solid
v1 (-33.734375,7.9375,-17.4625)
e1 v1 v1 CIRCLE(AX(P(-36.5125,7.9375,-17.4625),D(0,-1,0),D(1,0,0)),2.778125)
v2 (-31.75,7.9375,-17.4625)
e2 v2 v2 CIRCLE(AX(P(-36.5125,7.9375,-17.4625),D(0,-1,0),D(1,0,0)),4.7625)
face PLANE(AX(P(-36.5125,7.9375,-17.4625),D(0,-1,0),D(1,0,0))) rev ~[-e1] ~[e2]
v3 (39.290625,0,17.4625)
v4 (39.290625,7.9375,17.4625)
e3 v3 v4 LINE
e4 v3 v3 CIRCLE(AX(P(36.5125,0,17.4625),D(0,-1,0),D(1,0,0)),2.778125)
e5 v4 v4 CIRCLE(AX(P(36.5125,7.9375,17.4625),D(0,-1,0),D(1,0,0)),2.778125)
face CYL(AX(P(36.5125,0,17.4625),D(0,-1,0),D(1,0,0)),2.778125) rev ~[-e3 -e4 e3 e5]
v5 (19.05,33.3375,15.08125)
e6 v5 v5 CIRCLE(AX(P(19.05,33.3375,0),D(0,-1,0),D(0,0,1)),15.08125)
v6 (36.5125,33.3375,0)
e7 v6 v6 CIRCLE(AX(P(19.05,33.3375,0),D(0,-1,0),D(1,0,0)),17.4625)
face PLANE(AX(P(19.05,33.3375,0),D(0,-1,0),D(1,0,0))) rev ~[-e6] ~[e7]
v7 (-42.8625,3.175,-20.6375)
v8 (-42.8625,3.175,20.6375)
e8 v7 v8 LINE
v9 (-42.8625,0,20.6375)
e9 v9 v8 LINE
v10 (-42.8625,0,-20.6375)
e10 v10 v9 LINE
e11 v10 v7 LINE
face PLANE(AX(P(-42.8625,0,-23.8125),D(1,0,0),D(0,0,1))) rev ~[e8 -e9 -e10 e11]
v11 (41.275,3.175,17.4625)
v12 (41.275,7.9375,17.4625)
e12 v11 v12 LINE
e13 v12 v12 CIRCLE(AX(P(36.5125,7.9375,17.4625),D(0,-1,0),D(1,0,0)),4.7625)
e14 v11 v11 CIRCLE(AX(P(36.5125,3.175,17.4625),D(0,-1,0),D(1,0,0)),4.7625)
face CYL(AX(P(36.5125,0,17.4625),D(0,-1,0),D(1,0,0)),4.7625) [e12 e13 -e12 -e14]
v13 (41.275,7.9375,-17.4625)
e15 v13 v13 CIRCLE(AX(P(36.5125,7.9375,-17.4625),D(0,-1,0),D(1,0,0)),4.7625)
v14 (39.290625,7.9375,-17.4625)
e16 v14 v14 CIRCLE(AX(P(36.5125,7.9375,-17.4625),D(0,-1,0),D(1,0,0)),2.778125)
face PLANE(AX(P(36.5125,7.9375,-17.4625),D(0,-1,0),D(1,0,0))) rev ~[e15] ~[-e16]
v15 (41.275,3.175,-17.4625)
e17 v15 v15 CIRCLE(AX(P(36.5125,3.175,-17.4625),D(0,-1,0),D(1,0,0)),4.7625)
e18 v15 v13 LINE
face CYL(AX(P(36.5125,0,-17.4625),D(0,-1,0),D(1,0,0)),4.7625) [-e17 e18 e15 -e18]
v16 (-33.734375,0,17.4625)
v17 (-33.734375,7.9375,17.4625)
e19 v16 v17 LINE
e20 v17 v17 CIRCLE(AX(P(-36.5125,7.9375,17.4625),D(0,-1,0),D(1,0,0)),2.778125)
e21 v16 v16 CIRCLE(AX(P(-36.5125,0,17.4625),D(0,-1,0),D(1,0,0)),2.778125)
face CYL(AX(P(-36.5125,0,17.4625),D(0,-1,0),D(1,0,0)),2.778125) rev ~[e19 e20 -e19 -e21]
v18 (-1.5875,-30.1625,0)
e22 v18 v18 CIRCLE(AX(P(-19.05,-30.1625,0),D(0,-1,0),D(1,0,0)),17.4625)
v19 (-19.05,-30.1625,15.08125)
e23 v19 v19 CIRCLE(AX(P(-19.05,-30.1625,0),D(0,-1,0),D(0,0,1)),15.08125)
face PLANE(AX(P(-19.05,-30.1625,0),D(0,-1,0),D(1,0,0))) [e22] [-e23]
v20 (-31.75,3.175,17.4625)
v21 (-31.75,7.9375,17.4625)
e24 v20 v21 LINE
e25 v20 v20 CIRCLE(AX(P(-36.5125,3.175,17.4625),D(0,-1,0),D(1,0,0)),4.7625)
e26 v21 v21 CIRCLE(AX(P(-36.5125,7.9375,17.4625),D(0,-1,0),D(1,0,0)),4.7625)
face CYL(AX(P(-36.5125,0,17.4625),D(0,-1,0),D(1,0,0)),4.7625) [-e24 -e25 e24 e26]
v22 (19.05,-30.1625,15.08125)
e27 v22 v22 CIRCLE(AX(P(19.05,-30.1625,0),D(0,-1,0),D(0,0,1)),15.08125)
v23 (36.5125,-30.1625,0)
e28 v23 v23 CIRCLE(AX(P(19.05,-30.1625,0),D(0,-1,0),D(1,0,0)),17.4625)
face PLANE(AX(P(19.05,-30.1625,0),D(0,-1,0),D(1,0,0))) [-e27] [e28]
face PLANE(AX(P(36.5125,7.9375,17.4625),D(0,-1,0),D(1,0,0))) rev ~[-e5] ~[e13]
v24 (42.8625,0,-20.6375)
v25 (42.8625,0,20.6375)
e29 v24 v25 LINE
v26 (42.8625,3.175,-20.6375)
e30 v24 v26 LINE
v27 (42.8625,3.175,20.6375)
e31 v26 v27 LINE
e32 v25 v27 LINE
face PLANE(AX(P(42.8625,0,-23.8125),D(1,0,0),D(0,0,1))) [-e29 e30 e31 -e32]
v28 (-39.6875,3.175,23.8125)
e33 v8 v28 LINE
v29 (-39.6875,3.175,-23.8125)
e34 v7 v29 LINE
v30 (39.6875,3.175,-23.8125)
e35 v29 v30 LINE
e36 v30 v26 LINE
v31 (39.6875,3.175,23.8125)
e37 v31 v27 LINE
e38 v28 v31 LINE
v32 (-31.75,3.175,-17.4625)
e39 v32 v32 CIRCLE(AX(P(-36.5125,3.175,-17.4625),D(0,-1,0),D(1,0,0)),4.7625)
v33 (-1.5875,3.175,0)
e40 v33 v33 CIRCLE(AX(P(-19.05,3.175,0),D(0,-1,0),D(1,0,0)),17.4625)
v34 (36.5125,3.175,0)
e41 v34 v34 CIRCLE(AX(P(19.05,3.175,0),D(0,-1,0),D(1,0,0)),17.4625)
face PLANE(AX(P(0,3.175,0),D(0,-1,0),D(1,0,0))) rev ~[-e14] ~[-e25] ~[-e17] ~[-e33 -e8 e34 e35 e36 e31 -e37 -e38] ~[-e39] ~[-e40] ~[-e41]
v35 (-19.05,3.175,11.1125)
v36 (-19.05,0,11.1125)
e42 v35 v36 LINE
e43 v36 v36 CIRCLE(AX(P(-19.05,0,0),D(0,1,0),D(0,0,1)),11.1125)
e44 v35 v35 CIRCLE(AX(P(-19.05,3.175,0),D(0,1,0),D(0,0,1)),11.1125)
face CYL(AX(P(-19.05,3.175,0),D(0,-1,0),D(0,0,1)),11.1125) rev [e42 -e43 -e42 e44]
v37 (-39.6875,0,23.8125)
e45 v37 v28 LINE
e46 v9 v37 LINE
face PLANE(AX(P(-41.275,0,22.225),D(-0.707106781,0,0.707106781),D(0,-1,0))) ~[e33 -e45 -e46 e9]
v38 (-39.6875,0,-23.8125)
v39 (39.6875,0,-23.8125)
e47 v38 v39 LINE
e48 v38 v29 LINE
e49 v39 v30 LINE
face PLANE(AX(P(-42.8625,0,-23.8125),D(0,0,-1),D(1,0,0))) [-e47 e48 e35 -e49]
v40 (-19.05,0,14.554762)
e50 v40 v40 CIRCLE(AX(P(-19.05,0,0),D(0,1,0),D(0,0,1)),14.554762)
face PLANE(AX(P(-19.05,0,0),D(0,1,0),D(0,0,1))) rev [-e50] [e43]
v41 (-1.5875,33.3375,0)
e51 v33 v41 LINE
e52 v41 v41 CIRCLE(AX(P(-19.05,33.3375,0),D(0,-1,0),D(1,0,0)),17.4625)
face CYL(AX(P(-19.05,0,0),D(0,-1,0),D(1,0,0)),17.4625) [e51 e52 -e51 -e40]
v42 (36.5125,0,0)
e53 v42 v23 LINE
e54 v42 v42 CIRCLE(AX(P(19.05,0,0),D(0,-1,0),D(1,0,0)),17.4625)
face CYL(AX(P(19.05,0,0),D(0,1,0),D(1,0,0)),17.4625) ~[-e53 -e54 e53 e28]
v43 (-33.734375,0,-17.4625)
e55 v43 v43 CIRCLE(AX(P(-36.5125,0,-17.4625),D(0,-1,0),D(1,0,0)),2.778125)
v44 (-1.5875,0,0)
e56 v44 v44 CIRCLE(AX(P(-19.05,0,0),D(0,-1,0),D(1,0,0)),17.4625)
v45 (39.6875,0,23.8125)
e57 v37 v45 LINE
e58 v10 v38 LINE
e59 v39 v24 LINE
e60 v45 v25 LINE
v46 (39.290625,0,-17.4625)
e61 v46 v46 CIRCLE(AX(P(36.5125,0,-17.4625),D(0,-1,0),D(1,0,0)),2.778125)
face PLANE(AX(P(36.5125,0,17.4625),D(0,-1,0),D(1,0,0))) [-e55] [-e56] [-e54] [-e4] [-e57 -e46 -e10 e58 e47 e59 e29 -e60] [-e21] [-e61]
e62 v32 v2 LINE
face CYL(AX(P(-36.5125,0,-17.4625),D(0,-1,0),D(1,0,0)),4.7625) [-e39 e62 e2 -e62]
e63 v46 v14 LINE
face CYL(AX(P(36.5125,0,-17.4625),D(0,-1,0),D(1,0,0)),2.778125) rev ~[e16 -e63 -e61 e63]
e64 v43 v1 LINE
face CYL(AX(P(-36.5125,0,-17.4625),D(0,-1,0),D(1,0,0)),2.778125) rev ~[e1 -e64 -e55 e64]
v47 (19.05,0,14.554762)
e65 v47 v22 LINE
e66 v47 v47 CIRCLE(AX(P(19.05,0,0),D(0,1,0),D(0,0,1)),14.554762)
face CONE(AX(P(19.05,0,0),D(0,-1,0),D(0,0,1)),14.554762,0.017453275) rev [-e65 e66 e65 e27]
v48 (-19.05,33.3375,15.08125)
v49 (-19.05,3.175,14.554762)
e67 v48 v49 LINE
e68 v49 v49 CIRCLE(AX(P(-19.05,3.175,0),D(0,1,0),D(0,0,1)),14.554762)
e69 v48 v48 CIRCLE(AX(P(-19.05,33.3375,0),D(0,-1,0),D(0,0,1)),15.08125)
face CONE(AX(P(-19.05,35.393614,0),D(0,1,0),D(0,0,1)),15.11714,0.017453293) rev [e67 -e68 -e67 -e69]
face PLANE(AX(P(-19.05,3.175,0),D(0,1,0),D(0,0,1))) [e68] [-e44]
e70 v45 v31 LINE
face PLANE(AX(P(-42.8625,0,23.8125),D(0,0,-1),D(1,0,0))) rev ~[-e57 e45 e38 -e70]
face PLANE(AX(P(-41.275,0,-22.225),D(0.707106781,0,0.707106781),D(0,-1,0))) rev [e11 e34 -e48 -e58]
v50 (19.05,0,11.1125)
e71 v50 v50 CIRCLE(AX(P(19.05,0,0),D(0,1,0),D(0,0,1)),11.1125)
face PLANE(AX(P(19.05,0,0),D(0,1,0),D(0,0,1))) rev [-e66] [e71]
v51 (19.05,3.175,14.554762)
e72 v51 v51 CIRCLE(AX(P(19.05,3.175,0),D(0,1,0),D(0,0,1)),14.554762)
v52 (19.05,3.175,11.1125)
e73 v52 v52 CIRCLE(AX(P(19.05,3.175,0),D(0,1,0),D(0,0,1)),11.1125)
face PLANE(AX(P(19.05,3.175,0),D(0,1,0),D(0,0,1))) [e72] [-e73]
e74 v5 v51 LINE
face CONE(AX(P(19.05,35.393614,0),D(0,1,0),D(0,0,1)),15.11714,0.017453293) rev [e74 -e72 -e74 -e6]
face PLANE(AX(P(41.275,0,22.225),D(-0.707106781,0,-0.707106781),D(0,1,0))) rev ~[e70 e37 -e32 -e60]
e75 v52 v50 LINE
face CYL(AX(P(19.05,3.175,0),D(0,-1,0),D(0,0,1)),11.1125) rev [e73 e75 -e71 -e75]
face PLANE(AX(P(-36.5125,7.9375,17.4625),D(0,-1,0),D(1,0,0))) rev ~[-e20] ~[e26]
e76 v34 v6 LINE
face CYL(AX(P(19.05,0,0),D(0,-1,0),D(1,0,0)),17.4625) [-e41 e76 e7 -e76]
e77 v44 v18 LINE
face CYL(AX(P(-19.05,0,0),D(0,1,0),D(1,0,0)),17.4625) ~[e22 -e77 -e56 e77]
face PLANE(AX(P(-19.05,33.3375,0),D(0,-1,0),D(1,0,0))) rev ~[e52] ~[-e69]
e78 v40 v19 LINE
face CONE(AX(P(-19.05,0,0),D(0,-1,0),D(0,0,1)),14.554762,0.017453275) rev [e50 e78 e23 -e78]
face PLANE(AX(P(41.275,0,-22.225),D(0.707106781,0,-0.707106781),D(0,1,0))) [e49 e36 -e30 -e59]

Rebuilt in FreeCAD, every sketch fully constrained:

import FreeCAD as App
import Part
import Sketcher
from FreeCAD import Vector
Q = App.Units.Quantity


def edges_at(feature, points):
    """Names of the edges that pass closest to the given points."""
    edges = feature.Shape.Edges
    near = lambda p: min(range(len(edges)), key=lambda i: edges[i].distToShape(Part.Vertex(*p))[0])
    return sorted({f"Edge{near(p) + 1}" for p in points})


def add_polygon(sketch, points):
    """Adds a closed chain of lines whose ends are joined by coincident constraints."""
    first, n = sketch.GeometryCount, len(points)
    for a, b in zip(points, points[1:] + points[:1]):
        sketch.addGeometry(Part.LineSegment(App.Vector(*a, 0), App.Vector(*b, 0)), False)
    for i in range(n):
        sketch.addConstraint(Sketcher.Constraint("Coincident", first + i, 2, first + (i + 1) % n, 1))

doc = App.newDocument("Part")
body = doc.addObject("PartDesign::Body", "Body")

# Sketch on XZ plane
sketch1 = body.newObject("Sketcher::SketchObject", "Sketch")
sketch1.AttachmentSupport = (doc.getObject("XZ_Plane"), [""])
sketch1.MapMode = "FlatFace"
add_polygon(sketch1, [(-43, 24), (-43, -24), (43, -24), (43, 24)])  # lines 0-3
sketch1.addConstraint([
    Sketcher.Constraint("Vertical", 0),
    Sketcher.Constraint("Horizontal", 1),
    Sketcher.Constraint("Vertical", 2),
    Sketcher.Constraint("Horizontal", 3),
    Sketcher.Constraint("Symmetric", 0, 2, 2, 2, -1, 1),
    Sketcher.Constraint("DistanceX", 1, 1, 1, 2, Q("3.375 in")),
    Sketcher.Constraint("DistanceY", 0, 2, 0, 1, Q("1.875 in")),
])
pad1 = body.newObject("PartDesign::Pad", "Pad")
pad1.Profile = sketch1
pad1.Length = Q("0.125 in")
pad1.Reversed = True

# Sketch on XZ plane
sketch2 = body.newObject("Sketcher::SketchObject", "Sketch001")
sketch2.AttachmentSupport = (doc.getObject("XZ_Plane"), [""])
sketch2.MapMode = "FlatFace"
sketch2.addGeometry([
    Part.Circle(Vector(19, 0, 0), Vector(0, 0, 1), 17),
    Part.Circle(Vector(-19, 0, 0), Vector(0, 0, 1), 17),
], False)
sketch2.addConstraint([
    Sketcher.Constraint("Equal", 0, 1),
    Sketcher.Constraint("Symmetric", 0, 3, 1, 3, -1, 1),
    Sketcher.Constraint("PointOnObject", 0, 3, -1),
    Sketcher.Constraint("Diameter", 0, Q("1.375 in")),
    Sketcher.Constraint("DistanceX", 1, 3, 0, 3, Q("1.5 in")),
])
pad2 = body.newObject("PartDesign::Pad", "Pad001")
pad2.Profile = sketch2
pad2.Length = Q("1.1875 in")

# Sketch on XZ plane
sketch3 = body.newObject("Sketcher::SketchObject", "Sketch002")
sketch3.AttachmentSupport = (doc.getObject("XZ_Plane"), [""])
sketch3.MapMode = "FlatFace"
sketch3.addGeometry([
    Part.Circle(Vector(19, 0, 0), Vector(0, 0, 1), 17),
    Part.Circle(Vector(-19, 0, 0), Vector(0, 0, 1), 17),
], False)
sketch3.addConstraint([
    Sketcher.Constraint("Equal", 0, 1),
    Sketcher.Constraint("Symmetric", 0, 3, 1, 3, -1, 1),
    Sketcher.Constraint("PointOnObject", 0, 3, -1),
    Sketcher.Constraint("Diameter", 0, Q("1.375 in")),
    Sketcher.Constraint("DistanceX", 1, 3, 0, 3, Q("1.5 in")),
])
pad3 = body.newObject("PartDesign::Pad", "Pad002")
pad3.Profile = sketch3
pad3.Length = Q("1.3125 in")
pad3.Reversed = True

# Sketch on YZ plane
sketch4 = body.newObject("Sketcher::SketchObject", "Sketch003")
sketch4.AttachmentSupport = (doc.getObject("YZ_Plane"), [""])
sketch4.MapMode = "FlatFace"
sketch4.AttachmentOffset = App.Placement(Vector(0, 0, -0.75 * 25.4), App.Rotation())
add_polygon(sketch4, [(0, 14.6), (-37.2, 15.2), (-37.2, 0), (35.4, 0), (35.4, 15.1), (3.2, 14.6), (3.2, 11.1), (0, 11.1)])  # lines 0-7
sketch4.addConstraint([
    Sketcher.Constraint("Vertical", 1),
    Sketcher.Constraint("Horizontal", 2),
    Sketcher.Constraint("Vertical", 3),
    Sketcher.Constraint("Vertical", 5),
    Sketcher.Constraint("Horizontal", 6),
    Sketcher.Constraint("Vertical", 7),
    Sketcher.Constraint("PointOnObject", 1, 2, -1),
    Sketcher.Constraint("PointOnObject", 6, 2, -2),
    Sketcher.Constraint("Horizontal", 4, 2, 7, 2),
    Sketcher.Constraint("Angle", 0, Q("179.000001 deg")),
    Sketcher.Constraint("Angle", 4, Q("-179 deg")),
    Sketcher.Constraint("DistanceX", 6, 2, 6, 1, Q("0.125 in")),
    Sketcher.Constraint("DistanceY", -1, 1, 5, 2, Q("0.4375 in")),
    Sketcher.Constraint("DistanceX", 2, 1, 2, 2, Q("72.595689 mm")),
    Sketcher.Constraint("DistanceY", 3, 1, 3, 2, Q("15.11714 mm")),
    Sketcher.Constraint("DistanceY", 5, 2, 5, 1, Q("3.442262 mm")),
])
groove = body.newObject("PartDesign::Groove", "Groove")
groove.Profile = sketch4
groove.ReferenceAxis = (sketch4, ["H_Axis"])
groove.Angle = 360

# Sketch on YZ plane
sketch5 = body.newObject("Sketcher::SketchObject", "Sketch004")
sketch5.AttachmentSupport = (doc.getObject("YZ_Plane"), [""])
sketch5.MapMode = "FlatFace"
sketch5.AttachmentOffset = App.Placement(Vector(0, 0, 0.75 * 25.4), App.Rotation())
add_polygon(sketch5, [(0, 14.6), (-37.2, 15.2), (-37.2, 0), (35.4, 0), (35.4, 15.1), (3.2, 14.6), (3.2, 11.1), (0, 11.1)])  # lines 0-7
sketch5.addConstraint([
    Sketcher.Constraint("Vertical", 1),
    Sketcher.Constraint("Horizontal", 2),
    Sketcher.Constraint("Vertical", 3),
    Sketcher.Constraint("Vertical", 5),
    Sketcher.Constraint("Horizontal", 6),
    Sketcher.Constraint("Vertical", 7),
    Sketcher.Constraint("PointOnObject", 1, 2, -1),
    Sketcher.Constraint("PointOnObject", 6, 2, -2),
    Sketcher.Constraint("Horizontal", 4, 2, 7, 2),
    Sketcher.Constraint("Angle", 0, Q("179.000001 deg")),
    Sketcher.Constraint("Angle", 4, Q("-179 deg")),
    Sketcher.Constraint("DistanceX", 6, 2, 6, 1, Q("0.125 in")),
    Sketcher.Constraint("DistanceY", -1, 1, 5, 2, Q("0.4375 in")),
    Sketcher.Constraint("DistanceX", 2, 1, 2, 2, Q("72.595689 mm")),
    Sketcher.Constraint("DistanceY", 3, 1, 3, 2, Q("15.11714 mm")),
    Sketcher.Constraint("DistanceY", 5, 2, 5, 1, Q("3.442262 mm")),
])
groove2 = body.newObject("PartDesign::Groove", "Groove001")
groove2.Profile = sketch5
groove2.ReferenceAxis = (sketch5, ["H_Axis"])
groove2.Angle = 360
doc.recompute()

chamfer = body.newObject("PartDesign::Chamfer", "Chamfer")
chamfer.Base = (groove2, edges_at(groove2, [
    (-42.862, 1.587, 23.812),
    (42.862, 1.587, 23.812),
    (42.862, 1.587, -23.812),
    (-42.862, 1.587, -23.812),
]))
chamfer.Size = Q("0.125 in")

# Sketch on XZ plane
sketch6 = body.newObject("Sketcher::SketchObject", "Sketch005")
sketch6.AttachmentSupport = (doc.getObject("XZ_Plane"), [""])
sketch6.MapMode = "FlatFace"
sketch6.addGeometry([
    Part.Circle(Vector(36.5, 17.5, 0), Vector(0, 0, 1), 4.8),
    Part.Circle(Vector(-36.5, 17.5, 0), Vector(0, 0, 1), 4.8),
    Part.Circle(Vector(-36.5, -17.5, 0), Vector(0, 0, 1), 4.8),
    Part.Circle(Vector(36.5, -17.5, 0), Vector(0, 0, 1), 4.8),
], False)
sketch6.addConstraint([
    Sketcher.Constraint("Equal", 0, 1),
    Sketcher.Constraint("Equal", 1, 2),
    Sketcher.Constraint("Equal", 2, 3),
    Sketcher.Constraint("Symmetric", 0, 3, 2, 3, -1, 1),
    Sketcher.Constraint("Symmetric", 1, 3, 3, 3, -1, 1),
    Sketcher.Constraint("Symmetric", 0, 3, 1, 3, -2),
    Sketcher.Constraint("Diameter", 0, Q("0.375 in")),
    Sketcher.Constraint("DistanceX", -1, 1, 0, 3, Q("1.4375 in")),
    Sketcher.Constraint("DistanceY", -1, 1, 0, 3, Q("0.6875 in")),
])
pad4 = body.newObject("PartDesign::Pad", "Pad003")
pad4.Profile = sketch6
pad4.Length = Q("0.3125 in")
pad4.Reversed = True

# Sketch on XZ plane
sketch7 = body.newObject("Sketcher::SketchObject", "Sketch006")
sketch7.AttachmentSupport = (doc.getObject("XZ_Plane"), [""])
sketch7.MapMode = "FlatFace"
sketch7.addGeometry([
    Part.Circle(Vector(-36.5, 17.5, 0), Vector(0, 0, 1), 2.8),
    Part.Circle(Vector(36.5, 17.5, 0), Vector(0, 0, 1), 2.8),
    Part.Circle(Vector(-36.5, -17.5, 0), Vector(0, 0, 1), 2.8),
    Part.Circle(Vector(36.5, -17.5, 0), Vector(0, 0, 1), 2.8),
], False)
sketch7.addConstraint([
    Sketcher.Constraint("Equal", 0, 1),
    Sketcher.Constraint("Equal", 1, 2),
    Sketcher.Constraint("Equal", 2, 3),
    Sketcher.Constraint("Symmetric", 1, 3, 2, 3, -1, 1),
    Sketcher.Constraint("Symmetric", 0, 3, 3, 3, -1, 1),
    Sketcher.Constraint("Symmetric", 0, 3, 1, 3, -2),
    Sketcher.Constraint("Diameter", 0, Q("0.21875 in")),
    Sketcher.Constraint("DistanceX", 0, 3, -1, 1, Q("1.4375 in")),
    Sketcher.Constraint("DistanceY", -1, 1, 0, 3, Q("0.6875 in")),
])
pocket1 = body.newObject("PartDesign::Pocket", "Pocket")
pocket1.Profile = sketch7
pocket1.Length = Q("1 in")

doc.recompute()
